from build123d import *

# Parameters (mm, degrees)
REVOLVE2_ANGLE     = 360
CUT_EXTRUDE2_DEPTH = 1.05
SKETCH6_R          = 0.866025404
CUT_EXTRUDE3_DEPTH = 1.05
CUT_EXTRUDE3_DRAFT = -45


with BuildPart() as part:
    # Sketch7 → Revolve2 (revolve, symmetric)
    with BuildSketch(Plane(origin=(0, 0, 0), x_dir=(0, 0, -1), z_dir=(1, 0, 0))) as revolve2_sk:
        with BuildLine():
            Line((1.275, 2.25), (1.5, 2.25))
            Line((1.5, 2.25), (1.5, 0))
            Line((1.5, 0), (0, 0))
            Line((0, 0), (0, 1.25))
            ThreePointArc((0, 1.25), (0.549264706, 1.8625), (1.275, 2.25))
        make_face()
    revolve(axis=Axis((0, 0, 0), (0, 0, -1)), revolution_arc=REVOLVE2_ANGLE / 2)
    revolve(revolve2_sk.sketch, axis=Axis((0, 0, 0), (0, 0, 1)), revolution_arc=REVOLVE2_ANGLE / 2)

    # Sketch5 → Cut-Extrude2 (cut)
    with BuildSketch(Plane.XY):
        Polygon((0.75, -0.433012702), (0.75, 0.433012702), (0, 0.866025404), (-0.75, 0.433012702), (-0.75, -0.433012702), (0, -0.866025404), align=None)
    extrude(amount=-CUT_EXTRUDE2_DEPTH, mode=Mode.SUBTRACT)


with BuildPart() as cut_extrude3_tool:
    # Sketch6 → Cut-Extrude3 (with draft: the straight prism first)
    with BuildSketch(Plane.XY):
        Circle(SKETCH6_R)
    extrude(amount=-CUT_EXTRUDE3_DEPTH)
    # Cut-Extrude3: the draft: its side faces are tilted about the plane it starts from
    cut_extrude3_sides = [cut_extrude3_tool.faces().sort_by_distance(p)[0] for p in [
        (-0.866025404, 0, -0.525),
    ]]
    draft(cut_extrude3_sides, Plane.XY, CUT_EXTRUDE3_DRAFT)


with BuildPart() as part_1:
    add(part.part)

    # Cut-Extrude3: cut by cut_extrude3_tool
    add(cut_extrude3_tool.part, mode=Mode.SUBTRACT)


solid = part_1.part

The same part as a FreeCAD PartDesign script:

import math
import FreeCAD as App
import Part
import Sketcher

V = App.Vector
Q = App.Units.Quantity


def faces_at(feature, points):
    """Names of the faces that lie closest to the given points."""
    faces = feature.Shape.Faces
    near = lambda p: min(range(len(faces)), key=lambda i: faces[i].distToShape(Part.Vertex(*p))[0])
    return sorted({f"Face{near(p) + 1}" for p in points})


def add_polygon(sketch, points):
    """Adds a closed chain of lines whose ends are joined by coincident constraints."""
    first, n = sketch.GeometryCount, len(points)
    for a, b in zip(points, points[1:] + points[:1]):
        sketch.addGeometry(Part.LineSegment(App.Vector(*a, 0), App.Vector(*b, 0)), False)
    for i in range(n):
        sketch.addConstraint(Sketcher.Constraint("Coincident", first + i, 2, first + (i + 1) % n, 1))

doc = App.newDocument("Part")
body = doc.addObject("PartDesign::Body", "Body")

sketch1 = doc.addObject("Sketcher::SketchObject", "Sketch")
body.addObject(sketch1)
sketch1.AttachmentSupport = (doc.YZ_Plane, [""])
sketch1.MapMode = "FlatFace"
sketch1.addGeometry([
    Part.LineSegment(V(2.25, -1.5, 0), V(2.25, -1.275, 0)),
    Part.ArcOfCircle(Part.Circle(V(0, -2.010049, 0), V(0, 0, 1), 2.367023), math.radians(18.091617), math.radians(58.123536)),
    Part.LineSegment(V(1.25, 0, 0), V(0, 0, 0)),
    Part.LineSegment(V(0, 0, 0), V(0, -1.5, 0)),
    Part.LineSegment(V(0, -1.5, 0), V(2.25, -1.5, 0)),
], False)
sketch1.addConstraint([
    Sketcher.Constraint("Coincident", 0, 2, 1, 1),
    Sketcher.Constraint("Coincident", 1, 2, 2, 1),
    Sketcher.Constraint("Coincident", 2, 2, 3, 1),
    Sketcher.Constraint("Coincident", 3, 2, 4, 1),
    Sketcher.Constraint("Coincident", 4, 2, 0, 1),
    Sketcher.Constraint("Vertical", 0),
    Sketcher.Constraint("Horizontal", 2),
    Sketcher.Constraint("Vertical", 3),
    Sketcher.Constraint("Horizontal", 4),
    Sketcher.Constraint("Coincident", 2, 2, -1, 1),
    Sketcher.Constraint("PointOnObject", 1, 3, -2),
    Sketcher.Constraint("DistanceY", 3, 2, 3, 1, Q("1.5 mm")),
    Sketcher.Constraint("DistanceX", 1, 2, 0, 2, Q("1 mm")),
    Sketcher.Constraint("DistanceX", 2, 2, 2, 1, Q("1.25 mm")),
    Sketcher.Constraint("DistanceY", 0, 1, 0, 2, Q("0.225 mm")),
])
revolution = doc.addObject("PartDesign::Revolution", "Revolution")
body.addObject(revolution)
revolution.Profile = sketch1
revolution.ReferenceAxis = (sketch1, ["V_Axis"])
revolution.Angle = 180
revolution.Reversed = True

sketch2 = doc.addObject("Sketcher::SketchObject", "Sketch001")
body.addObject(sketch2)
sketch2.AttachmentSupport = (doc.YZ_Plane, [""])
sketch2.MapMode = "FlatFace"
sketch2.addGeometry([
    Part.LineSegment(V(2.25, -1.5, 0), V(2.25, -1.275, 0)),
    Part.ArcOfCircle(Part.Circle(V(0, -2.010049, 0), V(0, 0, 1), 2.367023), math.radians(18.091617), math.radians(58.123536)),
    Part.LineSegment(V(1.25, 0, 0), V(0, 0, 0)),
    Part.LineSegment(V(0, 0, 0), V(0, -1.5, 0)),
    Part.LineSegment(V(0, -1.5, 0), V(2.25, -1.5, 0)),
], False)
sketch2.addConstraint([
    Sketcher.Constraint("Coincident", 0, 2, 1, 1),
    Sketcher.Constraint("Coincident", 1, 2, 2, 1),
    Sketcher.Constraint("Coincident", 2, 2, 3, 1),
    Sketcher.Constraint("Coincident", 3, 2, 4, 1),
    Sketcher.Constraint("Coincident", 4, 2, 0, 1),
    Sketcher.Constraint("Vertical", 0),
    Sketcher.Constraint("Horizontal", 2),
    Sketcher.Constraint("Vertical", 3),
    Sketcher.Constraint("Horizontal", 4),
    Sketcher.Constraint("Coincident", 2, 2, -1, 1),
    Sketcher.Constraint("PointOnObject", 1, 3, -2),
    Sketcher.Constraint("DistanceY", 3, 2, 3, 1, Q("1.5 mm")),
    Sketcher.Constraint("DistanceX", 1, 2, 0, 2, Q("1 mm")),
    Sketcher.Constraint("DistanceX", 2, 2, 2, 1, Q("1.25 mm")),
    Sketcher.Constraint("DistanceY", 0, 1, 0, 2, Q("0.225 mm")),
])
revolution2 = doc.addObject("PartDesign::Revolution", "Revolution001")
body.addObject(revolution2)
revolution2.Profile = sketch2
revolution2.ReferenceAxis = (sketch2, ["V_Axis"])
revolution2.Angle = 180

sketch3 = doc.addObject("Sketcher::SketchObject", "Sketch002")
body.addObject(sketch3)
sketch3.AttachmentSupport = (doc.XY_Plane, [""])
sketch3.MapMode = "FlatFace"
add_polygon(sketch3, [(0.75, -0.433013), (0.75, 0.433013), (0, 0.866025), (-0.75, 0.433013), (-0.75, -0.433013), (0, -0.866025)])
sketch3.addConstraint([
    Sketcher.Constraint("Vertical", 0),
    Sketcher.Constraint("Vertical", 3),
    Sketcher.Constraint("Symmetric", 0, 2, 3, 2, -1, 1),
    Sketcher.Constraint("Symmetric", 1, 2, 4, 2, -1, 1),
    Sketcher.Constraint("PointOnObject", 1, 2, -2),
    Sketcher.Constraint("Parallel", 2, 5),
    Sketcher.Constraint("Horizontal", 0, 2, 2, 2),
    Sketcher.Constraint("Angle", 1, Q("150 deg")),
    Sketcher.Constraint("DistanceX", 2, 2, 0, 2, Q("1.5 mm")),
    Sketcher.Constraint("DistanceY", 0, 1, 0, 2, Q("0.866025 mm")),
])
pocket1 = doc.addObject("PartDesign::Pocket", "Pocket")
body.addObject(pocket1)
pocket1.Profile = sketch3
pocket1.Length = 1.05
body2 = doc.addObject("PartDesign::Body", "Body001")

sketch4 = doc.addObject("Sketcher::SketchObject", "Sketch003")
body2.addObject(sketch4)
sketch4.AttachmentSupport = (doc.getObject("XY_Plane001"), [""])
sketch4.MapMode = "FlatFace"
sketch4.addGeometry(Part.Circle(V(0, 0, 0), V(0, 0, 1), 0.866025), False)
sketch4.addConstraint([
    Sketcher.Constraint("Coincident", 0, 3, -1, 1),
    Sketcher.Constraint("Diameter", 0, Q("1.732051 mm")),
])
pad1 = doc.addObject("PartDesign::Pad", "Pad")
body2.addObject(pad1)
pad1.Profile = sketch4
pad1.Length = 1.05
pad1.Reversed = True
doc.recompute()

draft = doc.addObject("PartDesign::Draft", "Draft")
body2.addObject(draft)
draft.Base = (pad1, faces_at(pad1, [(-0.866, 0, -0.525)]))
draft.NeutralPlane = (doc.getObject("XY_Plane001"), [""])
draft.Angle = 45
draft.Reversed = True
doc.recompute()

boolean = doc.addObject("PartDesign::Boolean", "Boolean")
body.addObject(boolean)
boolean.Type = "Cut"
boolean.addObjects([body2])

doc.recompute()
